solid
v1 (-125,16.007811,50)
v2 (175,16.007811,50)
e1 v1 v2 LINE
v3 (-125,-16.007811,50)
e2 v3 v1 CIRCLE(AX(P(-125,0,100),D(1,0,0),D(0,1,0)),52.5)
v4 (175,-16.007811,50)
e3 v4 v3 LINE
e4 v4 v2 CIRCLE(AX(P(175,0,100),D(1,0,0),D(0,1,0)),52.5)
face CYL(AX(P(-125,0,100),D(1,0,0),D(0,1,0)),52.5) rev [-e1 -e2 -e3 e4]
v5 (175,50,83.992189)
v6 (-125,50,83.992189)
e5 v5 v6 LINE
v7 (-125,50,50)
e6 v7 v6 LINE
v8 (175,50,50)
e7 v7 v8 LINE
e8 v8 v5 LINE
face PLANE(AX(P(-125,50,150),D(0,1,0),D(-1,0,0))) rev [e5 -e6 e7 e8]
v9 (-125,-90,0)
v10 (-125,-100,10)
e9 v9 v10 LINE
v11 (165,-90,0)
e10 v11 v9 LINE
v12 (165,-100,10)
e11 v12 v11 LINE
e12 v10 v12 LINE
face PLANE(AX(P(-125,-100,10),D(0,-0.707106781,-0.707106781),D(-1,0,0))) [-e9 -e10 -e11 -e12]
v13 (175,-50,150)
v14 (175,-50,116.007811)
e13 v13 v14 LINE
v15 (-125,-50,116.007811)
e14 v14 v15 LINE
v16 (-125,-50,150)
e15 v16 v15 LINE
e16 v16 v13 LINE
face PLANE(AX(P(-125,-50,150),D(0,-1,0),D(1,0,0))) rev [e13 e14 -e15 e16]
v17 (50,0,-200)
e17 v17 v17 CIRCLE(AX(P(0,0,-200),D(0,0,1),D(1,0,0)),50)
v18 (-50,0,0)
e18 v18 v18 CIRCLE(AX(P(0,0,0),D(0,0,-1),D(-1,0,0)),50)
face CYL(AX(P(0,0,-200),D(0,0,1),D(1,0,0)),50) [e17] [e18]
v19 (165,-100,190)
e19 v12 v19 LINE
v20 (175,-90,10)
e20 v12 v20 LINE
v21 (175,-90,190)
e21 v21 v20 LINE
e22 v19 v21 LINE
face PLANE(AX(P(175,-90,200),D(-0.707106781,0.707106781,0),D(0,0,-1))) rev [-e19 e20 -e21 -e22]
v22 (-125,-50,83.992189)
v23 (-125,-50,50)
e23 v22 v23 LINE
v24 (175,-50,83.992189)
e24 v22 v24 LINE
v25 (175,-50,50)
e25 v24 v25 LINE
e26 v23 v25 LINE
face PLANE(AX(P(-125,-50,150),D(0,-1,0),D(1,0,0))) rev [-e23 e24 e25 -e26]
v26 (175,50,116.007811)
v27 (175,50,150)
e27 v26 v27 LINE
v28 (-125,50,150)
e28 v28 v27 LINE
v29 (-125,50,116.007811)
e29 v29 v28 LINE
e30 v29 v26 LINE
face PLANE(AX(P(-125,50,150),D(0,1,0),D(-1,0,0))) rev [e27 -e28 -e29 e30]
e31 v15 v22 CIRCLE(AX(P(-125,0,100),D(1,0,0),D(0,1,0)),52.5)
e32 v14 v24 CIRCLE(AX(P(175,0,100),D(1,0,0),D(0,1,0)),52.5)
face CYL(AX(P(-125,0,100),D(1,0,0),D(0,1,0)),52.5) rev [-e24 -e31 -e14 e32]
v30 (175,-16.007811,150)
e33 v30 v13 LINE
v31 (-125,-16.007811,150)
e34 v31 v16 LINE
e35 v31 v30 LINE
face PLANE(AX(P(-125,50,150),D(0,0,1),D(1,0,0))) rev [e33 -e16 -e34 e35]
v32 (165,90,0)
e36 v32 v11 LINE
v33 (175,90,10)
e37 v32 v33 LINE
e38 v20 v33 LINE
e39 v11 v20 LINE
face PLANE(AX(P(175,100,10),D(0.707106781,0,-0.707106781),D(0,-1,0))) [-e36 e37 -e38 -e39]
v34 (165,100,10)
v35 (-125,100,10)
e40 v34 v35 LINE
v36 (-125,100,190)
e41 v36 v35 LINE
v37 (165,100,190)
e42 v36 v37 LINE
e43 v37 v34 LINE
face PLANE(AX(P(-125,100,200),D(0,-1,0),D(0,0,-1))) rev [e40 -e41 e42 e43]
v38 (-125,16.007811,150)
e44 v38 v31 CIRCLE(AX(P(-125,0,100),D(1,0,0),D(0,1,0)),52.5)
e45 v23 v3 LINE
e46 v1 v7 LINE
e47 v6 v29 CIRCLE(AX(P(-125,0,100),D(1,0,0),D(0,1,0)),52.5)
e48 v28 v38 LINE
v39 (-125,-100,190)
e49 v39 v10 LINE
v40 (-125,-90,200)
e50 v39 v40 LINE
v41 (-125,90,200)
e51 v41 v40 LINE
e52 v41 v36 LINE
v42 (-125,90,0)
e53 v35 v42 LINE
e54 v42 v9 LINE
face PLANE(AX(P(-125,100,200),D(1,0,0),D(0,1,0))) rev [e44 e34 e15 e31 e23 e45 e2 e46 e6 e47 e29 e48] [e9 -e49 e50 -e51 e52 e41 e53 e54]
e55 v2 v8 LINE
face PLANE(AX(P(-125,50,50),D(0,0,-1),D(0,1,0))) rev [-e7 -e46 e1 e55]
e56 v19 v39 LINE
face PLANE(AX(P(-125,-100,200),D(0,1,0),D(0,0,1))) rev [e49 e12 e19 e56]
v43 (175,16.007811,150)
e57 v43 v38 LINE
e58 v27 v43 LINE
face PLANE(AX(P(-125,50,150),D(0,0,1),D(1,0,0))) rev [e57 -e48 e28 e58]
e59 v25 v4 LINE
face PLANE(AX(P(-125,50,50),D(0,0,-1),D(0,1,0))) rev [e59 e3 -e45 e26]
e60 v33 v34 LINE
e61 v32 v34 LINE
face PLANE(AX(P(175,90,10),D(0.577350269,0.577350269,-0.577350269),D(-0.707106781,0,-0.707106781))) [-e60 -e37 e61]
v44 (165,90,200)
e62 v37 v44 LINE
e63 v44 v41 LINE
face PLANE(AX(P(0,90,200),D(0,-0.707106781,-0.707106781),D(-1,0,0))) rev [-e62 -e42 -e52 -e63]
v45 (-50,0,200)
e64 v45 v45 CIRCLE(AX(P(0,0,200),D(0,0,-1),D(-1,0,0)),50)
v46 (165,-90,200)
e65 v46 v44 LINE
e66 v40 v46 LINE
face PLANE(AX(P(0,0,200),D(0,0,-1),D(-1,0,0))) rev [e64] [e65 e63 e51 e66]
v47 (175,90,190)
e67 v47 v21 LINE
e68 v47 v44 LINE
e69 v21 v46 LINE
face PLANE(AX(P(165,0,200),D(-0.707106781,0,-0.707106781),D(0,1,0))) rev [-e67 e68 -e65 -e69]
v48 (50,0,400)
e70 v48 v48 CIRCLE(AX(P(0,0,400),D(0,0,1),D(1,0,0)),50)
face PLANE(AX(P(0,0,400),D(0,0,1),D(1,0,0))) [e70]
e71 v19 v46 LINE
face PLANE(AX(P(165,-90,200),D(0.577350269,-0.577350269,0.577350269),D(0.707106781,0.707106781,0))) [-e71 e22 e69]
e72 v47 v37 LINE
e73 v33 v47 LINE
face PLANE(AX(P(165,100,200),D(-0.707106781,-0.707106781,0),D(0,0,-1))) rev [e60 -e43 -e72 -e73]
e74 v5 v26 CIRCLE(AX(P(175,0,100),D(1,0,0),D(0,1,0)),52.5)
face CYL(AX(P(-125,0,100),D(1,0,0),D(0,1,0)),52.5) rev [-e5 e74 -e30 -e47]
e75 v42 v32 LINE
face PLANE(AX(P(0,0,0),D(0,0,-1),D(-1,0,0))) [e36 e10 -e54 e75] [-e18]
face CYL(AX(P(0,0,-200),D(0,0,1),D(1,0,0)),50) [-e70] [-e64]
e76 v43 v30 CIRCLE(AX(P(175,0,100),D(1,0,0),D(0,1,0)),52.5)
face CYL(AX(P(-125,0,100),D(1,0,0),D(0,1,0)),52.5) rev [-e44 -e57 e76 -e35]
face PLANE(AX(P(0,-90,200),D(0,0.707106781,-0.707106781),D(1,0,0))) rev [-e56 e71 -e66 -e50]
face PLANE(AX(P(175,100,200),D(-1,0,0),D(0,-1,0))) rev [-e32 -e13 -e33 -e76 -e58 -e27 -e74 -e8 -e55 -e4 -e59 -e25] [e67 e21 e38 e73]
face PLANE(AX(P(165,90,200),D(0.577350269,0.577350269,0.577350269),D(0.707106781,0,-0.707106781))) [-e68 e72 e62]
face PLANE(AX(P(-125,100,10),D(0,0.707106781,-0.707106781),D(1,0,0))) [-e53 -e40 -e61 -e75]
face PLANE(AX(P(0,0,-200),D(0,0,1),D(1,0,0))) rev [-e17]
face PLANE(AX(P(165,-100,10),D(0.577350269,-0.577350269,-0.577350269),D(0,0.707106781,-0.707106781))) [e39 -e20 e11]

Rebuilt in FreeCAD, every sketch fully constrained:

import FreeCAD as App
import Part
import Sketcher


def edges_at(feature, points):
    """Names of the edges that pass closest to the given points."""
    edges = feature.Shape.Edges
    near = lambda p: min(range(len(edges)), key=lambda i: edges[i].distToShape(Part.Vertex(*p))[0])
    return sorted({f"Edge{near(p) + 1}" for p in points})


def add_polygon(sketch, points):
    """Adds a closed chain of lines whose ends are joined by coincident constraints."""
    first, n = sketch.GeometryCount, len(points)
    for a, b in zip(points, points[1:] + points[:1]):
        sketch.addGeometry(Part.LineSegment(App.Vector(*a, 0), App.Vector(*b, 0)), False)
    for i in range(n):
        sketch.addConstraint(Sketcher.Constraint("Coincident", first + i, 2, first + (i + 1) % n, 1))

doc = App.newDocument("Part")
body = doc.addObject("PartDesign::Body", "Body")

# Sketch on XY plane
sketch1 = body.newObject("Sketcher::SketchObject", "Sketch")
sketch1.AttachmentSupport = (doc.getObject("XY_Plane"), [""])
sketch1.MapMode = "FlatFace"
add_polygon(sketch1, [(175, 100), (-125, 100), (-125, -100), (175, -100)])  # lines 0-3
sketch1.addConstraint([
    Sketcher.Constraint("Horizontal", 0),
    Sketcher.Constraint("Vertical", 1),
    Sketcher.Constraint("Horizontal", 2),
    Sketcher.Constraint("Vertical", 3),
    Sketcher.Constraint("DistanceX", 0, 2, 0, 1, 300.0),
    Sketcher.Constraint("DistanceY", 1, 2, 1, 1, 200.0),
    Sketcher.Constraint("DistanceX", 0, 2, -1, 1, 125.0),
    Sketcher.Constraint("DistanceY", -1, 1, 0, 2, 100.0),
])
pad1 = body.newObject("PartDesign::Pad", "Pad")
pad1.Profile = sketch1
pad1.Length = 200

# Sketch on XY plane
sketch2 = body.newObject("Sketcher::SketchObject", "Sketch001")
sketch2.AttachmentSupport = (doc.getObject("XY_Plane"), [""])
sketch2.MapMode = "FlatFace"
sketch2.AttachmentOffset = App.Placement(App.Vector(0, 0, 200), App.Rotation())
sketch2.addGeometry(Part.Circle(App.Vector(0, 0, 0), App.Vector(0, 0, 1), 50), False)
sketch2.addConstraint([
    Sketcher.Constraint("Coincident", 0, 3, -1, 1),
    Sketcher.Constraint("Diameter", 0, 100.0),
])
pad2 = body.newObject("PartDesign::Pad", "Pad001")
pad2.Profile = sketch2
pad2.Type = "TwoLengths"
pad2.Length = 200
pad2.Length2 = 400

# Sketch on YZ plane
sketch3 = body.newObject("Sketcher::SketchObject", "Sketch002")
sketch3.AttachmentSupport = (doc.getObject("YZ_Plane"), [""])
sketch3.MapMode = "FlatFace"
sketch3.AttachmentOffset = App.Placement(App.Vector(0, 0, 175), App.Rotation())
add_polygon(sketch3, [(50, 150), (-50, 150), (-50, 50), (50, 50)])  # lines 0-3
sketch3.addConstraint([
    Sketcher.Constraint("Horizontal", 0),
    Sketcher.Constraint("Vertical", 1),
    Sketcher.Constraint("Horizontal", 2),
    Sketcher.Constraint("Vertical", 3),
    Sketcher.Constraint("Equal", 2, 1),
    Sketcher.Constraint("DistanceX", 0, 2, 0, 1, 100.0),
    Sketcher.Constraint("DistanceX", 0, 2, -1, 1, 50.0),
    Sketcher.Constraint("DistanceY", -1, 1, 0, 2, 150.0),
])
pocket1 = body.newObject("PartDesign::Pocket", "Pocket")
pocket1.Profile = sketch3
pocket1.Type = "ThroughAll"

# Sketch on YZ plane
sketch4 = body.newObject("Sketcher::SketchObject", "Sketch003")
sketch4.AttachmentSupport = (doc.getObject("YZ_Plane"), [""])
sketch4.MapMode = "FlatFace"
sketch4.AttachmentOffset = App.Placement(App.Vector(0, 0, 175), App.Rotation())
sketch4.addGeometry(Part.Circle(App.Vector(0, 100, 0), App.Vector(0, 0, 1), 52), False)
sketch4.addConstraint([
    Sketcher.Constraint("PointOnObject", 0, 3, -2),
    Sketcher.Constraint("Diameter", 0, 105.0),
    Sketcher.Constraint("DistanceY", -1, 1, 0, 3, 100.0),
])
pocket2 = body.newObject("PartDesign::Pocket", "Pocket001")
pocket2.Profile = sketch4
pocket2.Type = "ThroughAll"
doc.recompute()

chamfer = body.newObject("PartDesign::Chamfer", "Chamfer")
chamfer.Base = (pocket2, edges_at(pocket2, [
    (175, 100, 100),
    (175, -100, 100),
    (25, 100, 200),
    (25, -100, 200),
    (25, -100, 0),
    (25, 100, 0),
    (175, 0, 0),
    (175, 0, 200),
]))
chamfer.Size = 10

doc.recompute()
